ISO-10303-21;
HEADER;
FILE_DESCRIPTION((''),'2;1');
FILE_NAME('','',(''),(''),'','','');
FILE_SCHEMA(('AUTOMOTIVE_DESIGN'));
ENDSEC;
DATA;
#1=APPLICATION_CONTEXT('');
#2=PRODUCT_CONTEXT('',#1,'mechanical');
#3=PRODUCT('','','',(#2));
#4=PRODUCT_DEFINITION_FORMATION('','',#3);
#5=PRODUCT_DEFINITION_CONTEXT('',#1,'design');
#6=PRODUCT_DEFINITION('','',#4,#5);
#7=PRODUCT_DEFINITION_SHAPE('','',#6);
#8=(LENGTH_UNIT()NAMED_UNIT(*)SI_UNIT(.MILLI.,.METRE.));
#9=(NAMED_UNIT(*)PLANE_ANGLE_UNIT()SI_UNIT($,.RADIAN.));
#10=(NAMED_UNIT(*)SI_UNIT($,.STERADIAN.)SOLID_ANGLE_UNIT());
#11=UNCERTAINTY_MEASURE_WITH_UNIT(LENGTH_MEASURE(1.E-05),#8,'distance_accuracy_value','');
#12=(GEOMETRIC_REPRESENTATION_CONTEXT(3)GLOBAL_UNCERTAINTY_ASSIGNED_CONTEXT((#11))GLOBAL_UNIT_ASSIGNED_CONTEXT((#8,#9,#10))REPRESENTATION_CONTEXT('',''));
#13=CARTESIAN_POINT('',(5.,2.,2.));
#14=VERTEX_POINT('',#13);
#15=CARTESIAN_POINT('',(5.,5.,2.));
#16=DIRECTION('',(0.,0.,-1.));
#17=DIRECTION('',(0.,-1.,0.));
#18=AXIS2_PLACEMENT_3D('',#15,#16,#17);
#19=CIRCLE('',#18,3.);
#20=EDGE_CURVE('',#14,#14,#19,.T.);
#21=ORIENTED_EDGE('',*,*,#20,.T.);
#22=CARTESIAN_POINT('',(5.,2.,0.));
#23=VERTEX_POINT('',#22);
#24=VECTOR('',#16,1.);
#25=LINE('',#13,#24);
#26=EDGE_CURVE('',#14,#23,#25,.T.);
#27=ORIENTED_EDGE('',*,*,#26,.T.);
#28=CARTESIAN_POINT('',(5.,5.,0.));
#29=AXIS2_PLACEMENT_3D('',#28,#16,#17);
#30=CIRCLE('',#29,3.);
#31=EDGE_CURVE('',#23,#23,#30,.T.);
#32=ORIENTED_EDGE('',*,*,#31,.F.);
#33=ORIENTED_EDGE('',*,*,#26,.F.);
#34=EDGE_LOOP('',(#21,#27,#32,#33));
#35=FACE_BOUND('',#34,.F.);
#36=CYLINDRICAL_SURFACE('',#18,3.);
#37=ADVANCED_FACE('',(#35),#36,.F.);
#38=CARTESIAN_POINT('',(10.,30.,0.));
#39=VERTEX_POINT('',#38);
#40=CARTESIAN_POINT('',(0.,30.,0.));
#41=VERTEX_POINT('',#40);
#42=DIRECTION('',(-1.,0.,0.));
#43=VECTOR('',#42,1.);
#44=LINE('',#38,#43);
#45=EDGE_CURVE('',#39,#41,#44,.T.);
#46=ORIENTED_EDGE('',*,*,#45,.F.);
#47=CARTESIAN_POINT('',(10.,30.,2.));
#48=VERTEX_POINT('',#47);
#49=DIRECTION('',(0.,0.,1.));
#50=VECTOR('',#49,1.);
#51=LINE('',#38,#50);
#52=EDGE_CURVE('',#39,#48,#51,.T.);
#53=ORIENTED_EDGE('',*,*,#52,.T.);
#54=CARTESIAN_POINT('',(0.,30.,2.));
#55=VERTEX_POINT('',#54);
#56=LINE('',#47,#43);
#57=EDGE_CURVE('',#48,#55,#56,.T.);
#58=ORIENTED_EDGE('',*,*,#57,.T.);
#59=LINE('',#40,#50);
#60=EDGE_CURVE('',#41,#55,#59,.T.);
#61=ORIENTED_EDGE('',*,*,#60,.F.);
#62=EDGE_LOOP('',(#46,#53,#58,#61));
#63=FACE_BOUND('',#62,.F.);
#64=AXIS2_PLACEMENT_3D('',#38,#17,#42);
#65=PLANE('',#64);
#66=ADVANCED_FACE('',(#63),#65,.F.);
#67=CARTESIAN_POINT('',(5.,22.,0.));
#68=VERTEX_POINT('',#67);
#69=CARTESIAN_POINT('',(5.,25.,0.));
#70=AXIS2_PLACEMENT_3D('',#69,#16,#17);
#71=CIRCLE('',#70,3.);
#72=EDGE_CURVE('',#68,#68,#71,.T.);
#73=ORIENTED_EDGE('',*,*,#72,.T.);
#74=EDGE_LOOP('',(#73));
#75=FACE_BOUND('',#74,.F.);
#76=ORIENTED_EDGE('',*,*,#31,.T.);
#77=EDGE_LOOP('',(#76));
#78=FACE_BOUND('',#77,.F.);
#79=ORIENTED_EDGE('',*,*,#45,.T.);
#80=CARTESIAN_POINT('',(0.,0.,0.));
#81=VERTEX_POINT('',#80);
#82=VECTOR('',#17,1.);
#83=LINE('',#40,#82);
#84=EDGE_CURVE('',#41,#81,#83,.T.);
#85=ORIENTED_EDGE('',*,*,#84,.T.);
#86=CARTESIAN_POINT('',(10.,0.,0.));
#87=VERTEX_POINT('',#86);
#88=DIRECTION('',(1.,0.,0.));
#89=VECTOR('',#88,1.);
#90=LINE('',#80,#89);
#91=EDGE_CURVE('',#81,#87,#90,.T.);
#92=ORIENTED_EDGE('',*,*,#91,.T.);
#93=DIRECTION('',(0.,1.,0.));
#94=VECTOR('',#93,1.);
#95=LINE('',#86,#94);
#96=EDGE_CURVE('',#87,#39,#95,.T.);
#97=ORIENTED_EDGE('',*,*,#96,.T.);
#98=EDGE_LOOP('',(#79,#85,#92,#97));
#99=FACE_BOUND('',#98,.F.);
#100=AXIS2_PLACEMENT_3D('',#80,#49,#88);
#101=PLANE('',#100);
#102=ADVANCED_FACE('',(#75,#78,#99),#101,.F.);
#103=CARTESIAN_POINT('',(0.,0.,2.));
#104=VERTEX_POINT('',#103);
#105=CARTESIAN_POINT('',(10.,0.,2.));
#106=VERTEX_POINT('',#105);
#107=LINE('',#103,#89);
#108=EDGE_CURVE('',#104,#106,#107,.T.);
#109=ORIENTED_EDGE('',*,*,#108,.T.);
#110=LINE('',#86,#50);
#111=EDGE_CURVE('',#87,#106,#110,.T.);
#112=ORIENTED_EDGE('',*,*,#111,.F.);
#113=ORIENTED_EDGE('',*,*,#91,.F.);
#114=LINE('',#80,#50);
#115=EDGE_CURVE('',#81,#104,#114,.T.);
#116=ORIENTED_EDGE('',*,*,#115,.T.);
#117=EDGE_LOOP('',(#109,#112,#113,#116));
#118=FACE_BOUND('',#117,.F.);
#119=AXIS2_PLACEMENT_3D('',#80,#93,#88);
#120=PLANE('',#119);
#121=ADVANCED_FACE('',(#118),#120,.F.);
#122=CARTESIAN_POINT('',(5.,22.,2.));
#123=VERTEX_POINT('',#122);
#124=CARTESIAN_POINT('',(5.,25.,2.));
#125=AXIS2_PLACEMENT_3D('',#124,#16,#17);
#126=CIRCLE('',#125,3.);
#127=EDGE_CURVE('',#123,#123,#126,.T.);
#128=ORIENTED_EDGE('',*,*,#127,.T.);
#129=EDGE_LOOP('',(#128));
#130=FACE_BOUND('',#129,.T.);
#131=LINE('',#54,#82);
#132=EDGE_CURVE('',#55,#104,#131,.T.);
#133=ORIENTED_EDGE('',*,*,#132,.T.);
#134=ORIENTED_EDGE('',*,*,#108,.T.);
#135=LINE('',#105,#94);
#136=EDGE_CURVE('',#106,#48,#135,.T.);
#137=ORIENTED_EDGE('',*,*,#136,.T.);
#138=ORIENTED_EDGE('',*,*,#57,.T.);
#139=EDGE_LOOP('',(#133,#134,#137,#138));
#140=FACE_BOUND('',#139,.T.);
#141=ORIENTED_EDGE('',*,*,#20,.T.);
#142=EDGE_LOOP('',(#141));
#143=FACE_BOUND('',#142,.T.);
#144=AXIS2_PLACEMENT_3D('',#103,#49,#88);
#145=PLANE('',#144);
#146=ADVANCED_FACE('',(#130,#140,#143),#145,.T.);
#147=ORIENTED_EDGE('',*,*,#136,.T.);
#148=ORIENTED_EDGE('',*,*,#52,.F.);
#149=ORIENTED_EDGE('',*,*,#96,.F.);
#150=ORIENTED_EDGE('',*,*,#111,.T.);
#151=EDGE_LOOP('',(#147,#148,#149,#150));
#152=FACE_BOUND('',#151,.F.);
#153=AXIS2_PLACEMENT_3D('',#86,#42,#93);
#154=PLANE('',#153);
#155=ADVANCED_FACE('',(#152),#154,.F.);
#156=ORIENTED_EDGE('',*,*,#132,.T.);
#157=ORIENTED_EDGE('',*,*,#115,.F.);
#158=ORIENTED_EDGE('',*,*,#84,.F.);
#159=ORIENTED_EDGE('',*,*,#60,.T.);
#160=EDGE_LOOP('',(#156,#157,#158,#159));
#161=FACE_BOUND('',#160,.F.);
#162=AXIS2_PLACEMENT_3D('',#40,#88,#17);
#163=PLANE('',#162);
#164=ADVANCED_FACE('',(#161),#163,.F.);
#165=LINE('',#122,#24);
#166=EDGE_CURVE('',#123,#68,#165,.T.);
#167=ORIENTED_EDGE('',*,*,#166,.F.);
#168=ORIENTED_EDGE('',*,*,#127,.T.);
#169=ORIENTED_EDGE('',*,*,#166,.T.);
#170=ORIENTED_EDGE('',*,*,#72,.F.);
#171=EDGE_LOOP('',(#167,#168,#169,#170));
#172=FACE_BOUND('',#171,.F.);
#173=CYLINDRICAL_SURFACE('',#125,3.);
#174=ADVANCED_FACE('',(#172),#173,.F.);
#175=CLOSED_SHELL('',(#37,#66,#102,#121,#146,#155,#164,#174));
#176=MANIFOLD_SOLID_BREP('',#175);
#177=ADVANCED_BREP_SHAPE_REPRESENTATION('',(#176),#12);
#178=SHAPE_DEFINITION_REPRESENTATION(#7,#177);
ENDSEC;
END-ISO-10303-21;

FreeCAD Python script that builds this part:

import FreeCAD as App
import Part
import Sketcher
from FreeCAD import Vector


def add_polygon(sketch, points):
    """Adds a closed chain of lines whose ends are joined by coincident constraints."""
    first, n = sketch.GeometryCount, len(points)
    for a, b in zip(points, points[1:] + points[:1]):
        sketch.addGeometry(Part.LineSegment(App.Vector(*a, 0), App.Vector(*b, 0)), False)
    for i in range(n):
        sketch.addConstraint(Sketcher.Constraint("Coincident", first + i, 2, first + (i + 1) % n, 1))

doc = App.newDocument("Part")
body = doc.addObject("PartDesign::Body", "Body")

# Sketch on XY plane
sketch1 = body.newObject("Sketcher::SketchObject", "Sketch")
sketch1.AttachmentSupport = (doc.getObject("XY_Plane"), [""])
sketch1.MapMode = "FlatFace"
add_polygon(sketch1, [(0, 30), (0, 0), (10, 0), (10, 30)])  # lines 0-3
sketch1.addConstraint(Sketcher.Constraint("Vertical", 0))
sketch1.addConstraint(Sketcher.Constraint("Horizontal", 1))
sketch1.addConstraint(Sketcher.Constraint("Vertical", 2))
sketch1.addConstraint(Sketcher.Constraint("Horizontal", 3))
sketch1.addConstraint(Sketcher.Constraint("Coincident", 0, 2, -1, 1))
sketch1.addConstraint(Sketcher.Constraint("DistanceX", 1, 1, 1, 2, 10.0))
sketch1.addConstraint(Sketcher.Constraint("DistanceY", 0, 2, 0, 1, 30.0))
pad1 = body.newObject("PartDesign::Pad", "Pad")
pad1.Profile = sketch1
pad1.Length = 2

# Sketch on XY plane
sketch2 = body.newObject("Sketcher::SketchObject", "Sketch001")
sketch2.AttachmentSupport = (doc.getObject("XY_Plane"), [""])
sketch2.MapMode = "FlatFace"
sketch2.AttachmentOffset = App.Placement(Vector(0, 0, 2), App.Rotation())
sketch2.addGeometry(Part.Circle(Vector(5, 5, 0), Vector(0, 0, 1), 3), False)
sketch2.addGeometry(Part.Circle(Vector(5, 25, 0), Vector(0, 0, 1), 3), False)
sketch2.addConstraint(Sketcher.Constraint("Equal", 0, 1))
sketch2.addConstraint(Sketcher.Constraint("Vertical", 0, 3, 1, 3))
sketch2.addConstraint(Sketcher.Constraint("Diameter", 0, 6.0))
sketch2.addConstraint(Sketcher.Constraint("DistanceX", -1, 1, 0, 3, 5.0))
sketch2.addConstraint(Sketcher.Constraint("DistanceY", -1, 1, 0, 3, 5.0))
sketch2.addConstraint(Sketcher.Constraint("DistanceY", -1, 1, 1, 3, 25.0))
doc.recompute()
hole = body.newObject("PartDesign::Hole", "Hole")
hole.Profile = sketch2
hole.ThreadType = "None"
hole.Diameter = 6
hole.DepthType = "ThroughAll"

doc.recompute()
